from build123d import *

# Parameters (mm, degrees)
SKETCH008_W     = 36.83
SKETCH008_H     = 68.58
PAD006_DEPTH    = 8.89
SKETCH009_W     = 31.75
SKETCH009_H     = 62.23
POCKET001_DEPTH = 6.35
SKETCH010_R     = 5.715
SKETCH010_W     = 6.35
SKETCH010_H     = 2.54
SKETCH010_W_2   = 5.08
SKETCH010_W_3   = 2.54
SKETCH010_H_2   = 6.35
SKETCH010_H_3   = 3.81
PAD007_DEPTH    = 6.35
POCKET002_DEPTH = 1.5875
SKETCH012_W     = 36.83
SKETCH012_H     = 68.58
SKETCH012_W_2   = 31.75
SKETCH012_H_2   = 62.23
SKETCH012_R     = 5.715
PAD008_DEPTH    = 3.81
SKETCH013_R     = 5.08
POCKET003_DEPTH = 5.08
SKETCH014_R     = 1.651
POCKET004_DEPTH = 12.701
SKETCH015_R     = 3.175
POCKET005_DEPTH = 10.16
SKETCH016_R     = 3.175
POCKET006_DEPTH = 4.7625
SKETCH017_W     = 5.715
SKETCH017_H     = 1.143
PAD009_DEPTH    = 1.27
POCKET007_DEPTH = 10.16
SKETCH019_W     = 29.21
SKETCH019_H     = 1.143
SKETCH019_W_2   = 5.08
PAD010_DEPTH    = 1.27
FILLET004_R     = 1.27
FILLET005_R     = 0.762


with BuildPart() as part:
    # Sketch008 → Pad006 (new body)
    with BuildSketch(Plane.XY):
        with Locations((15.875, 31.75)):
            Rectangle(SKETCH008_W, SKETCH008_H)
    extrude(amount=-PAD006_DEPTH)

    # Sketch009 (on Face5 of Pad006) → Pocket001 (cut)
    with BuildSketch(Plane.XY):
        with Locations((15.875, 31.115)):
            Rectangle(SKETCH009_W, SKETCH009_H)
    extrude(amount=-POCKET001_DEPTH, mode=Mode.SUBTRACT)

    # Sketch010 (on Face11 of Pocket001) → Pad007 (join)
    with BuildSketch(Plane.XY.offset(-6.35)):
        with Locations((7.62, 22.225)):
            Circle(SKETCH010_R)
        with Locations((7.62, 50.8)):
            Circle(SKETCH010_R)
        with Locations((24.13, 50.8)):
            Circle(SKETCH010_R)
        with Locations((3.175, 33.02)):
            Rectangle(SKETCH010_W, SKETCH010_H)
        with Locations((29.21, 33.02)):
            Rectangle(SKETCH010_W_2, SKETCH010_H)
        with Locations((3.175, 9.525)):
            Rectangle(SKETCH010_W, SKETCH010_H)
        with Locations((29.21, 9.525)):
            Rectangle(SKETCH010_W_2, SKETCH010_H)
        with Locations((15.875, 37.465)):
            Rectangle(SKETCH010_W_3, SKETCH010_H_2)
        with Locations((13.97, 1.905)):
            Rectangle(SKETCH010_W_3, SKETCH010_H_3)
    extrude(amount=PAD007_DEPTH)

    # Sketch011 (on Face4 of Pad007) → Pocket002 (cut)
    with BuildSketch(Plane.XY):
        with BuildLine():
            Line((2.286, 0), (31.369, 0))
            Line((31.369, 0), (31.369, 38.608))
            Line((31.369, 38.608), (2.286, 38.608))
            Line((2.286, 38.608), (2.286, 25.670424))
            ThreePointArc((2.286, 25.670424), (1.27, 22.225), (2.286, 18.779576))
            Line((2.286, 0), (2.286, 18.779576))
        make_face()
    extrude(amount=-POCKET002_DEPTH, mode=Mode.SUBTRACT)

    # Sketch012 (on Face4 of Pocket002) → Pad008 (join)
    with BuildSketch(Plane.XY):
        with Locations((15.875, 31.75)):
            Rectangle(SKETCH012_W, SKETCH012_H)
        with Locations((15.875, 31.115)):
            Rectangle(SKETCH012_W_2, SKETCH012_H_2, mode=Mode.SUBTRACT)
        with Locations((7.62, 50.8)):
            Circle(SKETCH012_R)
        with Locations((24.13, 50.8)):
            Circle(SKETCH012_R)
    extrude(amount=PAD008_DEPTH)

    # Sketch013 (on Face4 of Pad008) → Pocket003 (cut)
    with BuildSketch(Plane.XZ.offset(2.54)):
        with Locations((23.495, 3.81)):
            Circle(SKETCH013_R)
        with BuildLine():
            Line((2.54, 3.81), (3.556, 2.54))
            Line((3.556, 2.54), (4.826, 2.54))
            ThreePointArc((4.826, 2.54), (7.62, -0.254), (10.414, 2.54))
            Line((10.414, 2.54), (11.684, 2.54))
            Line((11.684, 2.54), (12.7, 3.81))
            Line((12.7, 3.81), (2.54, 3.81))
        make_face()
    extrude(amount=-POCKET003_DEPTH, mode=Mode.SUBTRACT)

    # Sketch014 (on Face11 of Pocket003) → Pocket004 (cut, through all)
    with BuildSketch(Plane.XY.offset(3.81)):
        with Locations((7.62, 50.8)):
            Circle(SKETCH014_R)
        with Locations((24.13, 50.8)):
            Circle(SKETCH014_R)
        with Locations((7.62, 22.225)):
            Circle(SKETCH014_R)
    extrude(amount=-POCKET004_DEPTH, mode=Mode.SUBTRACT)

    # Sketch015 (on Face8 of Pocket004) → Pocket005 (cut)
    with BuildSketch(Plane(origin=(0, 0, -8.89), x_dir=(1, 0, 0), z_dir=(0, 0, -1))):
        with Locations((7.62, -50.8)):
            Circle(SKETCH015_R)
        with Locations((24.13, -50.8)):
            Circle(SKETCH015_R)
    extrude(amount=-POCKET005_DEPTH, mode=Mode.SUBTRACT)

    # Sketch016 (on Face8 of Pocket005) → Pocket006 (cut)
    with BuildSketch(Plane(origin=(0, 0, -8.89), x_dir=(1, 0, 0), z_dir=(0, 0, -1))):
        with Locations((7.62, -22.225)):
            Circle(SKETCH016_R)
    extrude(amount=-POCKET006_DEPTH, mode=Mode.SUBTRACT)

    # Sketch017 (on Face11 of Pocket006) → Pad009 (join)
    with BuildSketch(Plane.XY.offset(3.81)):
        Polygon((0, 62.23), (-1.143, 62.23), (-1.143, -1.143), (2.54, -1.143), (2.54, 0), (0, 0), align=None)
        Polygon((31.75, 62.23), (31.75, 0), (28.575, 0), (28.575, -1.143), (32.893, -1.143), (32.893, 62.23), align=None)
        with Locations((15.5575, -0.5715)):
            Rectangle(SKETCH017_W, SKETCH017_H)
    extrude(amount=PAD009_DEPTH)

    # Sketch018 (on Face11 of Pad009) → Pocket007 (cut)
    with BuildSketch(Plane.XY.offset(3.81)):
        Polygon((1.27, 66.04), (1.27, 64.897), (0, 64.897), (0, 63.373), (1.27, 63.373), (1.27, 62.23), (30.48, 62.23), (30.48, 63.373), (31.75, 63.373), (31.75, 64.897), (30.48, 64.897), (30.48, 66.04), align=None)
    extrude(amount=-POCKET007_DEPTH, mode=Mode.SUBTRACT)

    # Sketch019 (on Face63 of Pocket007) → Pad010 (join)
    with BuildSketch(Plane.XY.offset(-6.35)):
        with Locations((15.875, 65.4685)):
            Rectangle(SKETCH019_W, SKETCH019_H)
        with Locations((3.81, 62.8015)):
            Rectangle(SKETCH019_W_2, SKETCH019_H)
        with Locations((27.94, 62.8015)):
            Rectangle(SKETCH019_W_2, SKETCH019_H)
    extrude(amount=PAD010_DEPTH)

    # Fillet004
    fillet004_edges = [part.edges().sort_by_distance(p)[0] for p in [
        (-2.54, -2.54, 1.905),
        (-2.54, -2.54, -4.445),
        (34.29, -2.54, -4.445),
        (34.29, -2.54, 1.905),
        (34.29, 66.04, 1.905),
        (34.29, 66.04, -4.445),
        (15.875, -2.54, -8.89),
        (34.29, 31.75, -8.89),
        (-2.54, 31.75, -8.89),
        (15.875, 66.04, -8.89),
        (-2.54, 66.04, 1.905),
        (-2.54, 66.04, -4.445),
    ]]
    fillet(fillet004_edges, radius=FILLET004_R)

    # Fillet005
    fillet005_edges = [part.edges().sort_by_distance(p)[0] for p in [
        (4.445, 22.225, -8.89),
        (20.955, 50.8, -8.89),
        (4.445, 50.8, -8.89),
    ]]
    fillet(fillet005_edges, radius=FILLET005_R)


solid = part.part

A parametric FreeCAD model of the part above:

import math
import FreeCAD as App
import Part
import Sketcher
from FreeCAD import Vector
Q = App.Units.Quantity


def edges_at(feature, points):
    """Names of the edges that pass closest to the given points."""
    edges = feature.Shape.Edges
    near = lambda p: min(range(len(edges)), key=lambda i: edges[i].distToShape(Part.Vertex(*p))[0])
    return sorted({f"Edge{near(p) + 1}" for p in points})


def add_polygon(sketch, points):
    """Adds a closed chain of lines whose ends are joined by coincident constraints."""
    first, n = sketch.GeometryCount, len(points)
    for a, b in zip(points, points[1:] + points[:1]):
        sketch.addGeometry(Part.LineSegment(App.Vector(*a, 0), App.Vector(*b, 0)), False)
    for i in range(n):
        sketch.addConstraint(Sketcher.Constraint("Coincident", first + i, 2, first + (i + 1) % n, 1))

doc = App.newDocument("Part")
body = doc.addObject("PartDesign::Body", "Body")

# Sketch on XY plane
sketch1 = body.newObject("Sketcher::SketchObject", "Sketch")
sketch1.AttachmentSupport = (doc.getObject("XY_Plane"), [""])
sketch1.MapMode = "FlatFace"
add_polygon(sketch1, [(-3, 66), (-3, -3), (34, -3), (34, 66)])  # lines 0-3
sketch1.addConstraint([
    Sketcher.Constraint("Vertical", 0),
    Sketcher.Constraint("Horizontal", 1),
    Sketcher.Constraint("Vertical", 2),
    Sketcher.Constraint("Horizontal", 3),
    Sketcher.Constraint("DistanceY", 0, 2, 0, 1, Q("2.7 in")),
    Sketcher.Constraint("DistanceX", 1, 1, 1, 2, Q("1.45 in")),
    Sketcher.Constraint("DistanceX", 0, 2, -1, 1, Q("0.1 in")),
    Sketcher.Constraint("DistanceY", 0, 2, -1, 1, Q("0.1 in")),
])
pad1 = body.newObject("PartDesign::Pad", "Pad")
pad1.Profile = sketch1
pad1.Length = Q("0.35 in")
pad1.Reversed = True

# Sketch on XY plane
sketch2 = body.newObject("Sketcher::SketchObject", "Sketch001")
sketch2.AttachmentSupport = (doc.getObject("XY_Plane"), [""])
sketch2.MapMode = "FlatFace"
add_polygon(sketch2, [(0, 62), (0, 0), (32, 0), (32, 62)])  # lines 0-3
sketch2.addConstraint([
    Sketcher.Constraint("Vertical", 0),
    Sketcher.Constraint("Horizontal", 1),
    Sketcher.Constraint("Vertical", 2),
    Sketcher.Constraint("Horizontal", 3),
    Sketcher.Constraint("Coincident", 0, 2, -1, 1),
    Sketcher.Constraint("DistanceX", 1, 1, 1, 2, Q("1.25 in")),
    Sketcher.Constraint("DistanceY", 0, 2, 0, 1, Q("2.45 in")),
])
pocket1 = body.newObject("PartDesign::Pocket", "Pocket")
pocket1.Profile = sketch2
pocket1.Length = Q("0.25 in")

# Sketch on XY plane
sketch3 = body.newObject("Sketcher::SketchObject", "Sketch002")
sketch3.AttachmentSupport = (doc.getObject("XY_Plane"), [""])
sketch3.MapMode = "FlatFace"
sketch3.AttachmentOffset = App.Placement(Vector(0, 0, -0.25 * 25.4), App.Rotation())
sketch3.addGeometry(Part.Circle(Vector(7.6, 22.2, 0), Vector(0, 0, 1), 5.7), False)  # 0
sketch3.addGeometry(Part.Circle(Vector(7.6, 50.8, 0), Vector(0, 0, 1), 5.7), False)  # 1
sketch3.addGeometry(Part.Circle(Vector(24.1, 50.8, 0), Vector(0, 0, 1), 5.7), False)  # 2
add_polygon(sketch3, [(0, 34.3), (0, 31.8), (6.3, 31.8), (6.3, 34.3)])  # lines 3-6
add_polygon(sketch3, [(26.7, 34.3), (26.7, 31.8), (31.8, 31.8), (31.8, 34.3)])  # lines 7-10
add_polygon(sketch3, [(0, 10.8), (0, 8.3), (6.3, 8.3), (6.3, 10.8)])  # lines 11-14
add_polygon(sketch3, [(26.7, 10.8), (26.7, 8.3), (31.8, 8.3), (31.8, 10.8)])  # lines 15-18
add_polygon(sketch3, [(14.6, 40.6), (14.6, 34.3), (17.1, 34.3), (17.1, 40.6)])  # lines 19-22
add_polygon(sketch3, [(12.7, 3.8), (12.7, 0), (15.2, 0), (15.2, 3.8)])  # lines 23-26
sketch3.addConstraint([
    Sketcher.Constraint("Vertical", 3),
    Sketcher.Constraint("Horizontal", 4),
    Sketcher.Constraint("Vertical", 5),
    Sketcher.Constraint("Horizontal", 6),
    Sketcher.Constraint("Vertical", 7),
    Sketcher.Constraint("Horizontal", 8),
    Sketcher.Constraint("Vertical", 9),
    Sketcher.Constraint("Horizontal", 10),
    Sketcher.Constraint("Vertical", 11),
    Sketcher.Constraint("Horizontal", 12),
    Sketcher.Constraint("Vertical", 13),
    Sketcher.Constraint("Horizontal", 14),
    Sketcher.Constraint("Vertical", 15),
    Sketcher.Constraint("Horizontal", 16),
    Sketcher.Constraint("Vertical", 17),
    Sketcher.Constraint("Horizontal", 18),
    Sketcher.Constraint("Vertical", 19),
    Sketcher.Constraint("Horizontal", 20),
    Sketcher.Constraint("Vertical", 21),
    Sketcher.Constraint("Horizontal", 22),
    Sketcher.Constraint("Vertical", 23),
    Sketcher.Constraint("Horizontal", 24),
    Sketcher.Constraint("Vertical", 25),
    Sketcher.Constraint("Horizontal", 26),
    Sketcher.Constraint("Equal", 0, 1),
    Sketcher.Constraint("Equal", 1, 2),
    Sketcher.Constraint("PointOnObject", 3, 2, -2),
    Sketcher.Constraint("PointOnObject", 11, 2, -2),
    Sketcher.Constraint("PointOnObject", 23, 2, -1),
    Sketcher.Constraint("Horizontal", 1, 3, 2, 3),
    Sketcher.Constraint("Horizontal", 4, 2, 7, 2),
    Sketcher.Constraint("Horizontal", 6, 2, 9, 2),
    Sketcher.Constraint("Horizontal", 12, 2, 15, 2),
    Sketcher.Constraint("Horizontal", 14, 2, 17, 2),
    Sketcher.Constraint("Horizontal", 10, 2, 19, 2),
    Sketcher.Constraint("Vertical", 0, 3, 1, 3),
    Sketcher.Constraint("Vertical", 5, 2, 12, 2),
    Sketcher.Constraint("Vertical", 10, 2, 15, 2),
    Sketcher.Constraint("Vertical", 9, 2, 16, 2),
    Sketcher.Constraint("Equal", 22, 24),
    Sketcher.Constraint("Equal", 26, 3),
    Sketcher.Constraint("Equal", 9, 11),
    Sketcher.Constraint("Equal", 14, 19),
    Sketcher.Constraint("Diameter", 0, Q("0.45 in")),
    Sketcher.Constraint("DistanceX", 8, 1, 8, 2, Q("0.2 in")),
    Sketcher.Constraint("DistanceX", 20, 1, 20, 2, Q("0.1 in")),
    Sketcher.Constraint("DistanceY", -1, 1, 1, 3, Q("2 in")),
    Sketcher.Constraint("DistanceX", 4, 2, 8, 2, Q("1 in")),
    Sketcher.Constraint("DistanceX", 4, 1, 4, 2, Q("0.25 in")),
    Sketcher.Constraint("DistanceY", 23, 2, 23, 1, Q("0.15 in")),
    Sketcher.Constraint("DistanceX", -1, 1, 0, 3, Q("0.3 in")),
    Sketcher.Constraint("DistanceY", -1, 1, 21, 2, Q("1.6 in")),
    Sketcher.Constraint("DistanceX", -1, 1, 23, 2, Q("0.5 in")),
    Sketcher.Constraint("DistanceX", 4, 2, 2, 3, Q("0.7 in")),
    Sketcher.Constraint("DistanceY", 11, 2, 0, 3, Q("0.55 in")),
    Sketcher.Constraint("DistanceY", -1, 1, 0, 3, Q("0.875 in")),
    Sketcher.Constraint("DistanceX", -1, 1, 19, 2, Q("0.575 in")),
])
pad2 = body.newObject("PartDesign::Pad", "Pad001")
pad2.Profile = sketch3
pad2.Length = Q("0.25 in")

# Sketch on XY plane
sketch4 = body.newObject("Sketcher::SketchObject", "Sketch003")
sketch4.AttachmentSupport = (doc.getObject("XY_Plane"), [""])
sketch4.MapMode = "FlatFace"
sketch4.addGeometry([
    Part.LineSegment(Vector(2, 0, 0), Vector(31, 0, 0)),  # 0
    Part.LineSegment(Vector(31, 0, 0), Vector(31, 39, 0)),  # 1
    Part.LineSegment(Vector(31, 39, 0), Vector(2, 39, 0)),  # 2
    Part.LineSegment(Vector(2, 39, 0), Vector(2, 26, 0)),  # 3
    Part.ArcOfCircle(Part.Circle(Vector(8, 22, 0), Vector(0, 0, 1), 6), math.radians(147), math.radians(213)),  # 4
    Part.LineSegment(Vector(2, 19, 0), Vector(2, 0, 0)),  # 5
], False)
sketch4.addConstraint([
    Sketcher.Constraint("Coincident", 0, 2, 1, 1),
    Sketcher.Constraint("Coincident", 1, 2, 2, 1),
    Sketcher.Constraint("Coincident", 2, 2, 3, 1),
    Sketcher.Constraint("Coincident", 3, 2, 4, 1),
    Sketcher.Constraint("Coincident", 4, 2, 5, 1),
    Sketcher.Constraint("Coincident", 5, 2, 0, 1),
    Sketcher.Constraint("Horizontal", 0),
    Sketcher.Constraint("Vertical", 1),
    Sketcher.Constraint("Horizontal", 2),
    Sketcher.Constraint("Vertical", 3),
    Sketcher.Constraint("Vertical", 5),
    Sketcher.Constraint("PointOnObject", 0, 2, -1),
    Sketcher.Constraint("Vertical", 3, 2, 4, 2),
    Sketcher.Constraint("Radius", 4, Q("0.25 in")),
    Sketcher.Constraint("DistanceY", 1, 1, 1, 2, Q("1.52 in")),
    Sketcher.Constraint("DistanceX", -1, 1, 4, 3, Q("0.3 in")),
    Sketcher.Constraint("DistanceX", 0, 1, 0, 2, Q("1.145 in")),
    Sketcher.Constraint("DistanceX", -1, 1, 2, 2, Q("0.09 in")),
    Sketcher.Constraint("DistanceY", -1, 1, 4, 3, Q("0.875 in")),
])
pocket2 = body.newObject("PartDesign::Pocket", "Pocket001")
pocket2.Profile = sketch4
pocket2.Length = Q("0.0625 in")

# Sketch on XY plane
sketch5 = body.newObject("Sketcher::SketchObject", "Sketch004")
sketch5.AttachmentSupport = (doc.getObject("XY_Plane"), [""])
sketch5.MapMode = "FlatFace"
add_polygon(sketch5, [(-3, 66), (-3, -3), (34, -3), (34, 66)])  # lines 0-3
add_polygon(sketch5, [(32, 0), (0, 0), (0, 62), (32, 62)])  # lines 4-7
sketch5.addGeometry(Part.Circle(Vector(8, 51, 0), Vector(0, 0, 1), 6), False)  # 8
sketch5.addGeometry(Part.Circle(Vector(24, 51, 0), Vector(0, 0, 1), 6), False)  # 9
sketch5.addConstraint([
    Sketcher.Constraint("Vertical", 0),
    Sketcher.Constraint("Horizontal", 1),
    Sketcher.Constraint("Vertical", 2),
    Sketcher.Constraint("Horizontal", 3),
    Sketcher.Constraint("Horizontal", 4),
    Sketcher.Constraint("Vertical", 5),
    Sketcher.Constraint("Horizontal", 6),
    Sketcher.Constraint("Vertical", 7),
    Sketcher.Constraint("Coincident", 4, 2, -1, 1),
    Sketcher.Constraint("Equal", 8, 9),
    Sketcher.Constraint("Horizontal", 8, 3, 9, 3),
    Sketcher.Constraint("Diameter", 8, Q("0.45 in")),
    Sketcher.Constraint("DistanceY", 0, 2, 0, 1, Q("2.7 in")),
    Sketcher.Constraint("DistanceY", -1, 1, 8, 3, Q("2 in")),
    Sketcher.Constraint("DistanceX", 1, 1, 1, 2, Q("1.45 in")),
    Sketcher.Constraint("DistanceX", 4, 2, 4, 1, Q("1.25 in")),
    Sketcher.Constraint("DistanceY", 5, 1, 5, 2, Q("2.45 in")),
    Sketcher.Constraint("DistanceX", -1, 1, 8, 3, Q("0.3 in")),
    Sketcher.Constraint("DistanceX", 0, 2, -1, 1, Q("0.1 in")),
    Sketcher.Constraint("DistanceY", 0, 2, -1, 1, Q("0.1 in")),
    Sketcher.Constraint("DistanceX", 9, 3, 1, 2, Q("0.4 in")),
])
pad3 = body.newObject("PartDesign::Pad", "Pad002")
pad3.Profile = sketch5
pad3.Length = Q("0.15 in")

# Sketch on XZ plane
sketch6 = body.newObject("Sketcher::SketchObject", "Sketch005")
sketch6.AttachmentSupport = (doc.getObject("XZ_Plane"), [""])
sketch6.MapMode = "FlatFace"
sketch6.AttachmentOffset = App.Placement(Vector(0, 0, 0.1 * 25.4), App.Rotation())
sketch6.addGeometry([
    Part.Circle(Vector(23.5, 3.8, 0), Vector(0, 0, 1), 5.1),  # 0
    Part.LineSegment(Vector(2.5, 3.8, 0), Vector(3.6, 2.5, 0)),  # 1
    Part.LineSegment(Vector(3.6, 2.5, 0), Vector(4.8, 2.5, 0)),  # 2
    Part.ArcOfCircle(Part.Circle(Vector(7.6, 2.5, 0), Vector(0, 0, 1), 2.8), math.radians(180), math.radians(360)),  # 3
    Part.LineSegment(Vector(10.4, 2.5, 0), Vector(11.7, 2.5, 0)),  # 4
    Part.LineSegment(Vector(11.7, 2.5, 0), Vector(12.7, 3.8, 0)),  # 5
    Part.LineSegment(Vector(12.7, 3.8, 0), Vector(2.5, 3.8, 0)),  # 6
], False)
sketch6.addConstraint([
    Sketcher.Constraint("Coincident", 1, 2, 2, 1),
    Sketcher.Constraint("Coincident", 2, 2, 3, 1),
    Sketcher.Constraint("Coincident", 3, 2, 4, 1),
    Sketcher.Constraint("Coincident", 4, 2, 5, 1),
    Sketcher.Constraint("Coincident", 5, 2, 6, 1),
    Sketcher.Constraint("Coincident", 6, 2, 1, 1),
    Sketcher.Constraint("Horizontal", 2),
    Sketcher.Constraint("Horizontal", 4),
    Sketcher.Constraint("Horizontal", 6),
    Sketcher.Constraint("Horizontal", 3, 3, 1, 2),
    Sketcher.Constraint("Horizontal", 2, 2, 3, 2),
    Sketcher.Constraint("Horizontal", 0, 3, 5, 2),
    Sketcher.Constraint("Equal", 2, 4),
    Sketcher.Constraint("Equal", 1, 5),
    Sketcher.Constraint("Diameter", 0, Q("0.4 in")),
    Sketcher.Constraint("Radius", 3, Q("0.11 in")),
    Sketcher.Constraint("DistanceX", 6, 2, 6, 1, Q("0.4 in")),
    Sketcher.Constraint("DistanceX", 2, 1, 2, 2, Q("0.05 in")),
    Sketcher.Constraint("DistanceX", -1, 1, 3, 3, Q("0.3 in")),
    Sketcher.Constraint("DistanceY", -1, 1, 3, 3, Q("0.1 in")),
    Sketcher.Constraint("DistanceY", -1, 1, 0, 3, Q("0.15 in")),
    Sketcher.Constraint("DistanceX", -1, 1, 0, 3, Q("0.925 in")),
])
pocket3 = body.newObject("PartDesign::Pocket", "Pocket002")
pocket3.Profile = sketch6
pocket3.Length = Q("0.2 in")

# Sketch on XY plane
sketch7 = body.newObject("Sketcher::SketchObject", "Sketch006")
sketch7.AttachmentSupport = (doc.getObject("XY_Plane"), [""])
sketch7.MapMode = "FlatFace"
sketch7.AttachmentOffset = App.Placement(Vector(0, 0, 0.15 * 25.4), App.Rotation())
sketch7.addGeometry([
    Part.Circle(Vector(7.6, 50.8, 0), Vector(0, 0, 1), 1.7),
    Part.Circle(Vector(24.1, 50.8, 0), Vector(0, 0, 1), 1.7),
    Part.Circle(Vector(7.6, 22.2, 0), Vector(0, 0, 1), 1.7),
], False)
sketch7.addConstraint([
    Sketcher.Constraint("Equal", 0, 1),
    Sketcher.Constraint("Equal", 1, 2),
    Sketcher.Constraint("Horizontal", 0, 3, 1, 3),
    Sketcher.Constraint("Vertical", 0, 3, 2, 3),
    Sketcher.Constraint("Diameter", 0, Q("0.13 in")),
    Sketcher.Constraint("DistanceY", -1, 1, 0, 3, Q("2 in")),
    Sketcher.Constraint("DistanceX", -1, 1, 0, 3, Q("0.3 in")),
    Sketcher.Constraint("DistanceX", -1, 1, 1, 3, Q("0.95 in")),
    Sketcher.Constraint("DistanceY", -1, 1, 2, 3, Q("0.875 in")),
])
pocket4 = body.newObject("PartDesign::Pocket", "Pocket003")
pocket4.Profile = sketch7
pocket4.Type = "ThroughAll"

# Sketch on XY plane
sketch8 = body.newObject("Sketcher::SketchObject", "Sketch007")
sketch8.AttachmentSupport = (doc.getObject("XY_Plane"), [""])
sketch8.MapMode = "FlatFace"
sketch8.AttachmentOffset = App.Placement(Vector(0, 0, -0.35 * 25.4), App.Rotation())
sketch8.addGeometry([
    Part.Circle(Vector(7.6, 50.8, 0), Vector(0, 0, 1), 3.2),
    Part.Circle(Vector(24.1, 50.8, 0), Vector(0, 0, 1), 3.2),
], False)
sketch8.addConstraint([
    Sketcher.Constraint("Equal", 0, 1),
    Sketcher.Constraint("Horizontal", 0, 3, 1, 3),
    Sketcher.Constraint("Diameter", 0, Q("0.25 in")),
    Sketcher.Constraint("DistanceY", -1, 1, 0, 3, Q("2 in")),
    Sketcher.Constraint("DistanceX", -1, 1, 0, 3, Q("0.3 in")),
    Sketcher.Constraint("DistanceX", -1, 1, 1, 3, Q("0.95 in")),
])
pocket5 = body.newObject("PartDesign::Pocket", "Pocket004")
pocket5.Profile = sketch8
pocket5.Length = Q("0.4 in")
pocket5.Reversed = True

# Sketch on XY plane
sketch9 = body.newObject("Sketcher::SketchObject", "Sketch008")
sketch9.AttachmentSupport = (doc.getObject("XY_Plane"), [""])
sketch9.MapMode = "FlatFace"
sketch9.AttachmentOffset = App.Placement(Vector(0, 0, -0.35 * 25.4), App.Rotation())
sketch9.addGeometry(Part.Circle(Vector(7.6, 22.2, 0), Vector(0, 0, 1), 3.2), False)
sketch9.addConstraint([
    Sketcher.Constraint("Diameter", 0, Q("0.25 in")),
    Sketcher.Constraint("DistanceX", -1, 1, 0, 3, Q("0.3 in")),
    Sketcher.Constraint("DistanceY", -1, 1, 0, 3, Q("0.875 in")),
])
pocket6 = body.newObject("PartDesign::Pocket", "Pocket005")
pocket6.Profile = sketch9
pocket6.Length = Q("0.1875 in")
pocket6.Reversed = True

# Sketch on XY plane
sketch10 = body.newObject("Sketcher::SketchObject", "Sketch009")
sketch10.AttachmentSupport = (doc.getObject("XY_Plane"), [""])
sketch10.MapMode = "FlatFace"
sketch10.AttachmentOffset = App.Placement(Vector(0, 0, 0.15 * 25.4), App.Rotation())
add_polygon(sketch10, [(0, 62.2), (-1.1, 62.2), (-1.1, -1.1), (2.5, -1.1), (2.5, 0), (0, 0)])  # lines 0-5
add_polygon(sketch10, [(31.8, 62.2), (31.8, 0), (28.6, 0), (28.6, -1.1), (32.9, -1.1), (32.9, 62.2)])  # lines 6-11
add_polygon(sketch10, [(12.7, 0), (12.7, -1.1), (18.4, -1.1), (18.4, 0)])  # lines 12-15
sketch10.addConstraint([
    Sketcher.Constraint("Horizontal", 0),
    Sketcher.Constraint("Vertical", 1),
    Sketcher.Constraint("Horizontal", 2),
    Sketcher.Constraint("Vertical", 3),
    Sketcher.Constraint("Horizontal", 4),
    Sketcher.Constraint("Vertical", 5),
    Sketcher.Constraint("Vertical", 6),
    Sketcher.Constraint("Horizontal", 7),
    Sketcher.Constraint("Vertical", 8),
    Sketcher.Constraint("Horizontal", 9),
    Sketcher.Constraint("Vertical", 10),
    Sketcher.Constraint("Horizontal", 11),
    Sketcher.Constraint("Vertical", 12),
    Sketcher.Constraint("Horizontal", 13),
    Sketcher.Constraint("Vertical", 14),
    Sketcher.Constraint("Horizontal", 15),
    Sketcher.Constraint("Coincident", 4, 2, -1, 1),
    Sketcher.Constraint("PointOnObject", 6, 2, -1),
    Sketcher.Constraint("PointOnObject", 14, 2, -1),
    Sketcher.Constraint("Horizontal", 2, 2, 8, 2),
    Sketcher.Constraint("Horizontal", 5, 2, 10, 2),
    Sketcher.Constraint("Horizontal", 9, 2, 12, 2),
    Sketcher.Constraint("Equal", 0, 11),
    Sketcher.Constraint("Equal", 11, 3),
    Sketcher.Constraint("DistanceX", 4, 2, 4, 1, Q("0.1 in")),
    Sketcher.Constraint("DistanceX", 9, 1, 9, 2, Q("0.17 in")),
    Sketcher.Constraint("DistanceY", 5, 1, 5, 2, Q("2.45 in")),
    Sketcher.Constraint("DistanceX", -1, 1, 12, 2, Q("0.5 in")),
    Sketcher.Constraint("DistanceX", 13, 2, 8, 2, Q("0.4 in")),
    Sketcher.Constraint("DistanceX", 0, 2, 0, 1, Q("0.045 in")),
    Sketcher.Constraint("DistanceX", 13, 1, 13, 2, Q("0.225 in")),
])
pad4 = body.newObject("PartDesign::Pad", "Pad003")
pad4.Profile = sketch10
pad4.Length = Q("0.05 in")

# Sketch on XY plane
sketch11 = body.newObject("Sketcher::SketchObject", "Sketch010")
sketch11.AttachmentSupport = (doc.getObject("XY_Plane"), [""])
sketch11.MapMode = "FlatFace"
sketch11.AttachmentOffset = App.Placement(Vector(0, 0, 0.15 * 25.4), App.Rotation())
add_polygon(sketch11, [(1.3, 66), (1.3, 64.9), (0, 64.9), (0, 63.4), (1.3, 63.4), (1.3, 62.2), (30.5, 62.2), (30.5, 63.4), (31.8, 63.4), (31.8, 64.9), (30.5, 64.9), (30.5, 66)])  # lines 0-11
sketch11.addConstraint([
    Sketcher.Constraint("Vertical", 0),
    Sketcher.Constraint("Horizontal", 1),
    Sketcher.Constraint("Vertical", 2),
    Sketcher.Constraint("Horizontal", 3),
    Sketcher.Constraint("Vertical", 4),
    Sketcher.Constraint("Horizontal", 5),
    Sketcher.Constraint("Vertical", 6),
    Sketcher.Constraint("Horizontal", 7),
    Sketcher.Constraint("Vertical", 8),
    Sketcher.Constraint("Horizontal", 9),
    Sketcher.Constraint("Vertical", 10),
    Sketcher.Constraint("Horizontal", 11),
    Sketcher.Constraint("PointOnObject", 1, 2, -2),
    Sketcher.Constraint("Horizontal", 3, 2, 6, 2),
    Sketcher.Constraint("Horizontal", 1, 2, 8, 2),
    Sketcher.Constraint("Vertical", 0, 2, 3, 2),
    Sketcher.Constraint("Vertical", 6, 2, 9, 2),
    Sketcher.Constraint("Equal", 3, 7),
    Sketcher.Constraint("Equal", 0, 4),
    Sketcher.Constraint("DistanceX", 1, 2, 1, 1, Q("0.05 in")),
    Sketcher.Constraint("DistanceX", 5, 1, 5, 2, Q("1.15 in")),
    Sketcher.Constraint("DistanceY", 2, 2, 2, 1, Q("0.06 in")),
    Sketcher.Constraint("DistanceY", -1, 1, 10, 2, Q("2.6 in")),
    Sketcher.Constraint("DistanceY", 0, 2, 0, 1, Q("0.045 in")),
])
pocket7 = body.newObject("PartDesign::Pocket", "Pocket006")
pocket7.Profile = sketch11
pocket7.Length = Q("0.4 in")

# Sketch on XY plane
sketch12 = body.newObject("Sketcher::SketchObject", "Sketch011")
sketch12.AttachmentSupport = (doc.getObject("XY_Plane"), [""])
sketch12.MapMode = "FlatFace"
sketch12.AttachmentOffset = App.Placement(Vector(0, 0, -0.25 * 25.4), App.Rotation())
add_polygon(sketch12, [(1.3, 66), (1.3, 64.9), (30.5, 64.9), (30.5, 66)])  # lines 0-3
add_polygon(sketch12, [(1.3, 63.4), (1.3, 62.2), (6.3, 62.2), (6.3, 63.4)])  # lines 4-7
add_polygon(sketch12, [(25.4, 63.4), (25.4, 62.2), (30.5, 62.2), (30.5, 63.4)])  # lines 8-11
sketch12.addConstraint([
    Sketcher.Constraint("Vertical", 0),
    Sketcher.Constraint("Horizontal", 1),
    Sketcher.Constraint("Vertical", 2),
    Sketcher.Constraint("Horizontal", 3),
    Sketcher.Constraint("Vertical", 4),
    Sketcher.Constraint("Horizontal", 5),
    Sketcher.Constraint("Vertical", 6),
    Sketcher.Constraint("Horizontal", 7),
    Sketcher.Constraint("Vertical", 8),
    Sketcher.Constraint("Horizontal", 9),
    Sketcher.Constraint("Vertical", 10),
    Sketcher.Constraint("Horizontal", 11),
    Sketcher.Constraint("Horizontal", 5, 2, 8, 2),
    Sketcher.Constraint("Horizontal", 7, 2, 10, 2),
    Sketcher.Constraint("Vertical", 3, 2, 4, 2),
    Sketcher.Constraint("Vertical", 2, 2, 9, 2),
    Sketcher.Constraint("Equal", 7, 9),
    Sketcher.Constraint("Equal", 2, 4),
    Sketcher.Constraint("DistanceX", 5, 1, 5, 2, Q("0.2 in")),
    Sketcher.Constraint("DistanceX", -1, 1, 8, 2, Q("1 in")),
    Sketcher.Constraint("DistanceX", 1, 1, 1, 2, Q("1.15 in")),
    Sketcher.Constraint("DistanceY", -1, 1, 2, 2, Q("2.6 in")),
    Sketcher.Constraint("DistanceY", 0, 2, 0, 1, Q("0.045 in")),
    Sketcher.Constraint("DistanceY", -1, 1, 4, 2, Q("2.45 in")),
])
pad5 = body.newObject("PartDesign::Pad", "Pad004")
pad5.Profile = sketch12
pad5.Length = Q("0.05 in")
doc.recompute()

fillet = body.newObject("PartDesign::Fillet", "Fillet")
fillet.Base = (pad5, edges_at(pad5, [
    (-2.54, -2.54, -2.54),
    (-2.54, -2.54, -2.54),
    (34.29, -2.54, -2.54),
    (34.29, -2.54, -2.54),
    (34.29, 66.04, -2.54),
    (34.29, 66.04, -2.54),
    (15.875, -2.54, -8.89),
    (34.29, 31.75, -8.89),
    (-2.54, 31.75, -8.89),
    (15.875, 66.04, -8.89),
    (-2.54, 66.04, -2.54),
    (-2.54, 66.04, -2.54),
]))
fillet.Radius = Q("0.05 in")
doc.recompute()

fillet2 = body.newObject("PartDesign::Fillet", "Fillet001")
fillet2.Base = (fillet, edges_at(fillet, [(4.445, 22.225, -8.89), (20.955, 50.8, -8.89), (4.445, 50.8, -8.89)]))
fillet2.Radius = Q("0.03 in")

doc.recompute()
